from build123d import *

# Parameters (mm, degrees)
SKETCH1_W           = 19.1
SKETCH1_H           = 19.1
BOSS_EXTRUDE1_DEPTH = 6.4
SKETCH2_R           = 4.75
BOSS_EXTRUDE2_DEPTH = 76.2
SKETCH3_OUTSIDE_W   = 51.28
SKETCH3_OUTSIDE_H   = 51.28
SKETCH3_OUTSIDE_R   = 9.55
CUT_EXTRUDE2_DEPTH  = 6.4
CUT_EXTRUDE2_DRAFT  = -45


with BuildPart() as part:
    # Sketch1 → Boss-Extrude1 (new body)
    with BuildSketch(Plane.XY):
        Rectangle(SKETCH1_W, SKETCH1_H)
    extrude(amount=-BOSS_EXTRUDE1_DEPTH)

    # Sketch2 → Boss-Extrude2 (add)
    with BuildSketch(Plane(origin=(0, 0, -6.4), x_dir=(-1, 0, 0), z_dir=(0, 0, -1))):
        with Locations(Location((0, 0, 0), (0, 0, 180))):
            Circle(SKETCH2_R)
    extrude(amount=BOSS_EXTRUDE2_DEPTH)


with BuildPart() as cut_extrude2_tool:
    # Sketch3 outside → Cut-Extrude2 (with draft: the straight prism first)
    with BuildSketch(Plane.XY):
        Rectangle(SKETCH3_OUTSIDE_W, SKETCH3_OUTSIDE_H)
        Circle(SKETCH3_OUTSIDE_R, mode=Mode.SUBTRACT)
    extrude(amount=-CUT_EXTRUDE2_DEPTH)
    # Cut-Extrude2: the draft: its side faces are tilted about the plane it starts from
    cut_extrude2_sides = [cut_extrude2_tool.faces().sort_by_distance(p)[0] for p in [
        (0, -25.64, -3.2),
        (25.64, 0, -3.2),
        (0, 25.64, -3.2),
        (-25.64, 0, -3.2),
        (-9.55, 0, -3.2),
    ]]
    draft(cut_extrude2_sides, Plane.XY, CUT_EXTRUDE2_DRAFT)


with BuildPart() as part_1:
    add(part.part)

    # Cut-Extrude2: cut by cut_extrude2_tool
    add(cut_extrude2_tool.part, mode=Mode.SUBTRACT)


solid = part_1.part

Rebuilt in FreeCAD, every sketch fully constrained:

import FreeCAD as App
import Part
import Sketcher
from FreeCAD import Vector


def faces_at(feature, points):
    """Names of the faces that lie closest to the given points."""
    faces = feature.Shape.Faces
    near = lambda p: min(range(len(faces)), key=lambda i: faces[i].distToShape(Part.Vertex(*p))[0])
    return sorted({f"Face{near(p) + 1}" for p in points})


def add_polygon(sketch, points):
    """Adds a closed chain of lines whose ends are joined by coincident constraints."""
    first, n = sketch.GeometryCount, len(points)
    for a, b in zip(points, points[1:] + points[:1]):
        sketch.addGeometry(Part.LineSegment(App.Vector(*a, 0), App.Vector(*b, 0)), False)
    for i in range(n):
        sketch.addConstraint(Sketcher.Constraint("Coincident", first + i, 2, first + (i + 1) % n, 1))

doc = App.newDocument("Part")
body = doc.addObject("PartDesign::Body", "Body")

sketch1 = doc.addObject("Sketcher::SketchObject", "Sketch")
body.addObject(sketch1)
sketch1.AttachmentSupport = (doc.XY_Plane, [""])
sketch1.MapMode = "FlatFace"
add_polygon(sketch1, [(-10, 10), (-10, -10), (10, -10), (10, 10)])
sketch1.addConstraint(Sketcher.Constraint("Vertical", 0))
sketch1.addConstraint(Sketcher.Constraint("Horizontal", 1))
sketch1.addConstraint(Sketcher.Constraint("Vertical", 2))
sketch1.addConstraint(Sketcher.Constraint("Horizontal", 3))
sketch1.addConstraint(Sketcher.Constraint("Symmetric", 0, 2, 2, 2, -1, 1))
sketch1.addConstraint(Sketcher.Constraint("Equal", 3, 0))
sketch1.addConstraint(Sketcher.Constraint("DistanceX", 1, 1, 1, 2, 19.1))
pad1 = doc.addObject("PartDesign::Pad", "Pad")
body.addObject(pad1)
pad1.Profile = sketch1
pad1.Length = 6.4
pad1.Reversed = True

sketch2 = doc.addObject("Sketcher::SketchObject", "Sketch001")
body.addObject(sketch2)
sketch2.AttachmentSupport = (doc.XY_Plane, [""])
sketch2.MapMode = "FlatFace"
sketch2.AttachmentOffset = App.Placement(Vector(0, 0, -6.4), App.Rotation())
sketch2.addGeometry(Part.Circle(Vector(0, 0, 0), Vector(0, 0, 1), 4.8), False)
sketch2.addConstraint(Sketcher.Constraint("Coincident", 0, 3, -1, 1))
sketch2.addConstraint(Sketcher.Constraint("Diameter", 0, 9.5))
pad2 = doc.addObject("PartDesign::Pad", "Pad001")
body.addObject(pad2)
pad2.Profile = sketch2
pad2.Length = 76.2
pad2.Reversed = True
body2 = doc.addObject("PartDesign::Body", "Body001")

sketch3 = doc.addObject("Sketcher::SketchObject", "Sketch002")
body2.addObject(sketch3)
sketch3.AttachmentSupport = (doc.getObject("XY_Plane001"), [""])
sketch3.MapMode = "FlatFace"
add_polygon(sketch3, [(-26, 26), (-26, -26), (26, -26), (26, 26)])
sketch3.addGeometry(Part.Circle(Vector(0, 0, 0), Vector(0, 0, 1), 10), False)
sketch3.addConstraint(Sketcher.Constraint("Vertical", 0))
sketch3.addConstraint(Sketcher.Constraint("Horizontal", 1))
sketch3.addConstraint(Sketcher.Constraint("Vertical", 2))
sketch3.addConstraint(Sketcher.Constraint("Horizontal", 3))
sketch3.addConstraint(Sketcher.Constraint("Coincident", 4, 3, -1, 1))
sketch3.addConstraint(Sketcher.Constraint("Symmetric", 0, 2, 2, 2, -1, 1))
sketch3.addConstraint(Sketcher.Constraint("Equal", 3, 0))
sketch3.addConstraint(Sketcher.Constraint("Diameter", 4, 19.1))
sketch3.addConstraint(Sketcher.Constraint("DistanceX", 1, 1, 1, 2, 51.28))
pad3 = doc.addObject("PartDesign::Pad", "Pad002")
body2.addObject(pad3)
pad3.Profile = sketch3
pad3.Length = 6.4
pad3.Reversed = True
doc.recompute()

draft = doc.addObject("PartDesign::Draft", "Draft")
body2.addObject(draft)
draft.Base = (pad3, faces_at(pad3, [
    (0, -25.64, -3.2),
    (25.64, 0, -3.2),
    (0, 25.64, -3.2),
    (-25.64, 0, -3.2),
    (-9.55, 0, -3.2),
]))
draft.NeutralPlane = (doc.getObject("XY_Plane001"), [""])
draft.Angle = 45
draft.Reversed = True
doc.recompute()

boolean = doc.addObject("PartDesign::Boolean", "Boolean")
body.addObject(boolean)
boolean.Type = "Cut"
boolean.addObjects([body2])

doc.recompute()
